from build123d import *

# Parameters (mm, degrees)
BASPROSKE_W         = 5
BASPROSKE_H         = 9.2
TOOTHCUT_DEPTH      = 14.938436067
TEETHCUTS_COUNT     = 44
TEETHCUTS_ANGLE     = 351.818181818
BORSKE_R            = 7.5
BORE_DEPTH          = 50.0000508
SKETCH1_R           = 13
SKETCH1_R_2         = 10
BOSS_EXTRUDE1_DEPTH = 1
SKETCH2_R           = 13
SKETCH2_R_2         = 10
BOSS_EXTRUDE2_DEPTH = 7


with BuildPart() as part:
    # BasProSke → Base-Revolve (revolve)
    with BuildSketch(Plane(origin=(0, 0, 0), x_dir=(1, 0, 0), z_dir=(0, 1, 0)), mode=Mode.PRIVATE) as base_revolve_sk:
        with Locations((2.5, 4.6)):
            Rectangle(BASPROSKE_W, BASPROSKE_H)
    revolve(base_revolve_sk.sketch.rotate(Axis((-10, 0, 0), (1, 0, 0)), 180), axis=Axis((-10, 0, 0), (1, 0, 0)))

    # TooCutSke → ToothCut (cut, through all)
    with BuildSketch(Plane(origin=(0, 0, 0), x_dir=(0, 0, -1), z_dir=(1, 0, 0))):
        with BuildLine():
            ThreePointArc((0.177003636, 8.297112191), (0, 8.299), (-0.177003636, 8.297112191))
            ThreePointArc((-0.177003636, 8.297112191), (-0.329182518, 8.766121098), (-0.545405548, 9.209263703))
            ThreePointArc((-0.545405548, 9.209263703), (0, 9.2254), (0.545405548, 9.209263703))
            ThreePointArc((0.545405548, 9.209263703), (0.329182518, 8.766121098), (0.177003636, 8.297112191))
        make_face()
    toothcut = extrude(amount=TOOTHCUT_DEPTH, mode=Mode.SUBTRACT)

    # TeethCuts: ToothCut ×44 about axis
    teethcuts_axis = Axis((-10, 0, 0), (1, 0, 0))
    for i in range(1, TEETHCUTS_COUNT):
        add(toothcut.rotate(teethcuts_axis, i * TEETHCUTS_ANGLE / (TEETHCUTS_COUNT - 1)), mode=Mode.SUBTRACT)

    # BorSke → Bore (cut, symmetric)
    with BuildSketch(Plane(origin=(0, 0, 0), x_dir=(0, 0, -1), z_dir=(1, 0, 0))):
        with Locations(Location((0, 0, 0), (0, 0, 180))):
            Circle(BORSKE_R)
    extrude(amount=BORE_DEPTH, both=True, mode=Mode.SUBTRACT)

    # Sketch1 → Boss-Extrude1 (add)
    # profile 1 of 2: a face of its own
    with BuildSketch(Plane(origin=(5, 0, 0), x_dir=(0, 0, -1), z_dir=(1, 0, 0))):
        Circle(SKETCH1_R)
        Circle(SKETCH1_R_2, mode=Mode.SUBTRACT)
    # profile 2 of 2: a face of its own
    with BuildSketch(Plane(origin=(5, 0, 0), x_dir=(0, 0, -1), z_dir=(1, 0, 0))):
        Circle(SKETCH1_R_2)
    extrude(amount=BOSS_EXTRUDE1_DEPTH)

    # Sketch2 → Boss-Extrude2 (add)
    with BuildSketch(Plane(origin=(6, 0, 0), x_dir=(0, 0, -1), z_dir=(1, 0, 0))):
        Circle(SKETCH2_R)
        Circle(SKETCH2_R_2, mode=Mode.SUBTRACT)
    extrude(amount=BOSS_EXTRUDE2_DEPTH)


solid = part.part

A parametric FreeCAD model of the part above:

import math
import FreeCAD as App
import Part
import Sketcher
Q = App.Units.Quantity


def add_polygon(sketch, points):
    """Adds a closed chain of lines whose ends are joined by coincident constraints."""
    first, n = sketch.GeometryCount, len(points)
    for a, b in zip(points, points[1:] + points[:1]):
        sketch.addGeometry(Part.LineSegment(App.Vector(*a, 0), App.Vector(*b, 0)), False)
    for i in range(n):
        sketch.addConstraint(Sketcher.Constraint("Coincident", first + i, 2, first + (i + 1) % n, 1))

doc = App.newDocument("Part")
body = doc.addObject("PartDesign::Body", "Body")

sketch1 = body.newObject("Sketcher::SketchObject", "Sketch")
sketch1.AttachmentSupport = (doc.getObject("XZ_Plane"), [""])
sketch1.MapMode = "FlatFace"
add_polygon(sketch1, [(0, -9), (0, 0), (5, 0), (5, -9)])
sketch1.addConstraint([
    Sketcher.Constraint("Vertical", 0),
    Sketcher.Constraint("Horizontal", 1),
    Sketcher.Constraint("Vertical", 2),
    Sketcher.Constraint("Horizontal", 3),
    Sketcher.Constraint("Coincident", 0, 2, -1, 1),
    Sketcher.Constraint("DistanceX", 1, 1, 1, 2, Q("5 mm")),
    Sketcher.Constraint("DistanceY", 0, 1, 0, 2, Q("9.2 mm")),
])
revolution = body.newObject("PartDesign::Revolution", "Revolution")
revolution.Profile = sketch1
revolution.ReferenceAxis = (sketch1, ["H_Axis"])
revolution.Angle = 360

sketch2 = body.newObject("Sketcher::SketchObject", "Sketch001")
sketch2.AttachmentSupport = (doc.getObject("YZ_Plane"), [""])
sketch2.MapMode = "FlatFace"
sketch2.addGeometry([
    Part.ArcOfCircle(Part.Circle(App.Vector(0, 0, 0), App.Vector(0, 0, 1), 8.3), math.radians(-1.22), math.radians(1.22)),
    Part.ArcOfCircle(Part.Circle(App.Vector(7.45, -3.59, 0), App.Vector(0, 0, 1), 3.52), math.radians(59.97), math.radians(76.04)),
    Part.ArcOfCircle(Part.Circle(App.Vector(0, 0, 0), App.Vector(0, 0, 1), 9.23), math.radians(-3.39), math.radians(3.39)),
    Part.ArcOfCircle(Part.Circle(App.Vector(7.45, 3.59, 0), App.Vector(0, 0, 1), 3.52), math.radians(-76.04), math.radians(-59.97)),
], False)
sketch2.addConstraint([
    Sketcher.Constraint("Coincident", 0, 1, 1, 2),
    Sketcher.Constraint("Coincident", 1, 1, 2, 1),
    Sketcher.Constraint("Coincident", 2, 2, 3, 2),
    Sketcher.Constraint("Coincident", 3, 1, 0, 2),
    Sketcher.Constraint("Coincident", 0, 3, -1, 1),
    Sketcher.Constraint("Coincident", 2, 3, -1, 1),
    Sketcher.Constraint("Equal", 1, 3),
    Sketcher.Constraint("Symmetric", 1, 3, 3, 3, -1),
    Sketcher.Constraint("Radius", 1, Q("3.52 mm")),
    Sketcher.Constraint("Radius", 0, Q("8.298999 mm")),
    Sketcher.Constraint("Radius", 2, Q("9.2254 mm")),
    Sketcher.Constraint("DistanceY", 1, 1, 0, 1, Q("0.368402 mm")),
    Sketcher.Constraint("DistanceX", -1, 1, 1, 3, Q("7.44791 mm")),
])
pocket1 = body.newObject("PartDesign::Pocket", "Pocket")
pocket1.Profile = sketch2
pocket1.Type = "ThroughAll"
pocket1.Reversed = True
doc.recompute()

polarpattern = body.newObject("PartDesign::PolarPattern", "PolarPattern")
polarpattern.Originals = [pocket1]
polarpattern.Axis = (doc.getObject("X_Axis"), [""])
polarpattern.Angle = 360
polarpattern.Occurrences = 44
body.Tip = polarpattern

sketch3 = body.newObject("Sketcher::SketchObject", "Sketch002")
sketch3.AttachmentSupport = (doc.getObject("YZ_Plane"), [""])
sketch3.MapMode = "FlatFace"
sketch3.addGeometry(Part.Circle(App.Vector(0, 0, 0), App.Vector(0, 0, 1), 8), False)
sketch3.addConstraint([
    Sketcher.Constraint("Coincident", 0, 3, -1, 1),
    Sketcher.Constraint("Diameter", 0, Q("15 mm")),
])
pocket2 = body.newObject("PartDesign::Pocket", "Pocket001")
pocket2.Profile = sketch3
pocket2.Length = 100.000102
pocket2.Midplane = True

sketch4 = body.newObject("Sketcher::SketchObject", "Sketch003")
sketch4.AttachmentSupport = (doc.getObject("YZ_Plane"), [""])
sketch4.MapMode = "FlatFace"
sketch4.AttachmentOffset = App.Placement(App.Vector(0, 0, 5), App.Rotation())
sketch4.addGeometry(Part.Circle(App.Vector(0, 0, 0), App.Vector(0, 0, 1), 13), False)
sketch4.addConstraint([
    Sketcher.Constraint("Coincident", 0, 3, -1, 1),
    Sketcher.Constraint("Diameter", 0, Q("26 mm")),
])
pad1 = body.newObject("PartDesign::Pad", "Pad")
pad1.Profile = sketch4
pad1.Length = 1

sketch5 = body.newObject("Sketcher::SketchObject", "Sketch004")
sketch5.AttachmentSupport = (doc.getObject("YZ_Plane"), [""])
sketch5.MapMode = "FlatFace"
sketch5.AttachmentOffset = App.Placement(App.Vector(0, 0, 6), App.Rotation())
sketch5.addGeometry([
    Part.Circle(App.Vector(0, 0, 0), App.Vector(0, 0, 1), 13),
    Part.Circle(App.Vector(0, 0, 0), App.Vector(0, 0, 1), 10),
], False)
sketch5.addConstraint([
    Sketcher.Constraint("Coincident", 0, 3, -1, 1),
    Sketcher.Constraint("Coincident", 1, 3, -1, 1),
    Sketcher.Constraint("Diameter", 0, Q("26 mm")),
    Sketcher.Constraint("Diameter", 1, Q("20 mm")),
])
pad2 = body.newObject("PartDesign::Pad", "Pad001")
pad2.Profile = sketch5
pad2.Length = 7

doc.recompute()
